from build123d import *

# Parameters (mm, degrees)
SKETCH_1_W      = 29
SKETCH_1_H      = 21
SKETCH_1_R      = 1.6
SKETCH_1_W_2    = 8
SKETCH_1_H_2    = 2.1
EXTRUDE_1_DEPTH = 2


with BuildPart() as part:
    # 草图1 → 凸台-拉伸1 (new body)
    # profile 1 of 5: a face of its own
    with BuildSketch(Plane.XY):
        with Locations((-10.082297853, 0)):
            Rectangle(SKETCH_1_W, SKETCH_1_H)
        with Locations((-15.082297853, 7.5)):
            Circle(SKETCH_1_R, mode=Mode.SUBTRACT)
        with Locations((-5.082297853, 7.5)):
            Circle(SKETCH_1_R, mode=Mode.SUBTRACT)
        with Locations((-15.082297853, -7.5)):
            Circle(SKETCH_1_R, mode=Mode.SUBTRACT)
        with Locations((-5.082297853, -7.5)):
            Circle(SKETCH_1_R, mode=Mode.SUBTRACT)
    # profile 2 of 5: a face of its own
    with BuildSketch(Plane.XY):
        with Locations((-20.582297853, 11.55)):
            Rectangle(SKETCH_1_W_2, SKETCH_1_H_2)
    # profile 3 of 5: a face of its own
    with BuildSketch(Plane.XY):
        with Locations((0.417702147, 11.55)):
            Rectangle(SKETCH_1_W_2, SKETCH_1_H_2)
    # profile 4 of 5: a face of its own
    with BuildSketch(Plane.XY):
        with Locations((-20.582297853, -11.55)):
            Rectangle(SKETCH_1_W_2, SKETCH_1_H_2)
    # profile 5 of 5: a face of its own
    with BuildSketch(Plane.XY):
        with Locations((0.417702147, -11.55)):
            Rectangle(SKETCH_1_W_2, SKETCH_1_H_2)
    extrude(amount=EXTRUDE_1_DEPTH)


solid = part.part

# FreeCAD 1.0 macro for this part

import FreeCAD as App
import Part
import Sketcher
from FreeCAD import Vector


def add_polygon(sketch, points):
    """Adds a closed chain of lines whose ends are joined by coincident constraints."""
    first, n = sketch.GeometryCount, len(points)
    for a, b in zip(points, points[1:] + points[:1]):
        sketch.addGeometry(Part.LineSegment(App.Vector(*a, 0), App.Vector(*b, 0)), False)
    for i in range(n):
        sketch.addConstraint(Sketcher.Constraint("Coincident", first + i, 2, first + (i + 1) % n, 1))

doc = App.newDocument("Part")
body = doc.addObject("PartDesign::Body", "Body")

sketch1 = body.newObject("Sketcher::SketchObject", "Sketch")
sketch1.AttachmentSupport = (doc.getObject("XY_Plane"), [""])
sketch1.MapMode = "FlatFace"
add_polygon(sketch1, [(-24.6, -12.6), (-16.6, -12.6), (-16.6, -10.5), (-3.6, -10.5), (-3.6, -12.6), (4.4, -12.6), (4.4, 12.6), (-3.6, 12.6), (-3.6, 10.5), (-16.6, 10.5), (-16.6, 12.6), (-24.6, 12.6)])
sketch1.addGeometry(Part.Circle(Vector(-15.1, -7.5, 0), Vector(0, 0, 1), 1.6), False)
sketch1.addGeometry(Part.Circle(Vector(-5.1, -7.5, 0), Vector(0, 0, 1), 1.6), False)
sketch1.addGeometry(Part.Circle(Vector(-15.1, 7.5, 0), Vector(0, 0, 1), 1.6), False)
sketch1.addGeometry(Part.Circle(Vector(-5.1, 7.5, 0), Vector(0, 0, 1), 1.6), False)
sketch1.addConstraint([
    Sketcher.Constraint("Horizontal", 0),
    Sketcher.Constraint("Vertical", 1),
    Sketcher.Constraint("Horizontal", 2),
    Sketcher.Constraint("Vertical", 3),
    Sketcher.Constraint("Horizontal", 4),
    Sketcher.Constraint("Vertical", 5),
    Sketcher.Constraint("Horizontal", 6),
    Sketcher.Constraint("Vertical", 7),
    Sketcher.Constraint("Horizontal", 8),
    Sketcher.Constraint("Vertical", 9),
    Sketcher.Constraint("Horizontal", 10),
    Sketcher.Constraint("Vertical", 11),
    Sketcher.Constraint("Equal", 12, 13),
    Sketcher.Constraint("Equal", 13, 14),
    Sketcher.Constraint("Equal", 14, 15),
    Sketcher.Constraint("Symmetric", 12, 3, 14, 3, -1),
    Sketcher.Constraint("Symmetric", 13, 3, 15, 3, -1),
    Sketcher.Constraint("Symmetric", 3, 2, 6, 2, -1),
    Sketcher.Constraint("Symmetric", 1, 2, 8, 2, -1),
    Sketcher.Constraint("Horizontal", 12, 3, 13, 3),
    Sketcher.Constraint("Horizontal", 0, 2, 3, 2),
    Sketcher.Constraint("Horizontal", 6, 2, 9, 2),
    Sketcher.Constraint("Equal", 0, 4),
    Sketcher.Constraint("Diameter", 12, 3.2),
    Sketcher.Constraint("DistanceX", 0, 1, 0, 2, 8.0),
    Sketcher.Constraint("DistanceX", 2, 1, 2, 2, 13.0),
    Sketcher.Constraint("DistanceY", 1, 1, 1, 2, 2.1),
    Sketcher.Constraint("DistanceY", 5, 1, 5, 2, 25.2),
    Sketcher.Constraint("DistanceX", 12, 3, 13, 3, 10.0),
    Sketcher.Constraint("DistanceY", 12, 3, 14, 3, 15.0),
    Sketcher.Constraint("DistanceX", 0, 2, 12, 3, 1.5),
    Sketcher.Constraint("DistanceX", 12, 3, -1, 1, 15.082298),
])
pad1 = body.newObject("PartDesign::Pad", "Pad")
pad1.Profile = sketch1
pad1.Length = 2

doc.recompute()
